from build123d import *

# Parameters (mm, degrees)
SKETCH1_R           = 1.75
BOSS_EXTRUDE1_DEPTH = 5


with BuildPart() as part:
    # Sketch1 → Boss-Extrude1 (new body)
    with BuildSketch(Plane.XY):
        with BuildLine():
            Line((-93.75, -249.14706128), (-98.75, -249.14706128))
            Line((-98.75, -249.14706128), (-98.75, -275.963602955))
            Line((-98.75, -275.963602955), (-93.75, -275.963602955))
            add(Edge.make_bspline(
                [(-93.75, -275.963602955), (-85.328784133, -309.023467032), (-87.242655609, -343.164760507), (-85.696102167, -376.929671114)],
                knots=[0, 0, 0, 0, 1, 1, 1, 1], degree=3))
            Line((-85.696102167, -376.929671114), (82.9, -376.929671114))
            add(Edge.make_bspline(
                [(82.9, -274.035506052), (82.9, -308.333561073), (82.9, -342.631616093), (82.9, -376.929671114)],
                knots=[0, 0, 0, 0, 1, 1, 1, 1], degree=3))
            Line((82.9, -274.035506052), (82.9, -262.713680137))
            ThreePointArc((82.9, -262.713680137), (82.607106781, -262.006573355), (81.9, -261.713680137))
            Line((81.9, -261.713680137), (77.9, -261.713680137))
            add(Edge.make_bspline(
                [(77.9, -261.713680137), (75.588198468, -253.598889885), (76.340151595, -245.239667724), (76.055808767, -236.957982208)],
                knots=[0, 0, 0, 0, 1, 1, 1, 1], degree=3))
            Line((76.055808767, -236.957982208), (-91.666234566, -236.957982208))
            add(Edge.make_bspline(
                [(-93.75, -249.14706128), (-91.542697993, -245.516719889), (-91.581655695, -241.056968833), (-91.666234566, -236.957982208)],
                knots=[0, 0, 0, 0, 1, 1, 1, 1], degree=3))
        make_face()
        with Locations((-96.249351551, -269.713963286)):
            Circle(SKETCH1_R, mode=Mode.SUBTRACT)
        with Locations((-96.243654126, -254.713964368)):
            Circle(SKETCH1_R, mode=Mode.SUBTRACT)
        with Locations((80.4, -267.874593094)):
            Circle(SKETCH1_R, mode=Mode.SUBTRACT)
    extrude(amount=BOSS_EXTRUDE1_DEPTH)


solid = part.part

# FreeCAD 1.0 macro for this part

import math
import FreeCAD as App
import Part
import Sketcher

doc = App.newDocument("Part")
body = doc.addObject("PartDesign::Body", "Body")

sketch1 = body.newObject("Sketcher::SketchObject", "Sketch")
sketch1.AttachmentSupport = (doc.getObject("XY_Plane"), [""])
sketch1.MapMode = "FlatFace"
sketch1.addGeometry([
    Part.LineSegment(App.Vector(-93.75, -249.147061, 0), App.Vector(-98.75, -249.147061, 0)),
    Part.LineSegment(App.Vector(-98.75, -249.147061, 0), App.Vector(-98.75, -275.963603, 0)),
    Part.LineSegment(App.Vector(-98.75, -275.963603, 0), App.Vector(-93.75, -275.963603, 0)),
    Part.BSplineCurve([App.Vector(-93.75, -275.963603, 0), App.Vector(-85.328784, -309.023467, 0), App.Vector(-87.242656, -343.164761, 0), App.Vector(-85.696102, -376.929671, 0)], [4, 4], [0, 1], False, 3, [1, 1, 1, 1], False),
    Part.LineSegment(App.Vector(-85.696102, -376.929671, 0), App.Vector(82.9, -376.929671, 0)),
    Part.BSplineCurve([App.Vector(82.9, -274.035506, 0), App.Vector(82.9, -308.333561, 0), App.Vector(82.9, -342.631616, 0), App.Vector(82.9, -376.929671, 0)], [4, 4], [0, 1], False, 3, [1, 1, 1, 1], False),
    Part.LineSegment(App.Vector(82.9, -274.035506, 0), App.Vector(82.9, -262.71368, 0)),
    Part.ArcOfCircle(Part.Circle(App.Vector(81.9, -262.71368, 0), App.Vector(0, 0, 1), 1), math.radians(0), math.radians(90)),
    Part.LineSegment(App.Vector(81.9, -261.71368, 0), App.Vector(77.9, -261.71368, 0)),
    Part.BSplineCurve([App.Vector(77.9, -261.71368, 0), App.Vector(75.588198, -253.59889, 0), App.Vector(76.340152, -245.239668, 0), App.Vector(76.055809, -236.957982, 0)], [4, 4], [0, 1], False, 3, [1, 1, 1, 1], False),
    Part.LineSegment(App.Vector(76.055809, -236.957982, 0), App.Vector(-91.666235, -236.957982, 0)),
    Part.BSplineCurve([App.Vector(-93.75, -249.147061, 0), App.Vector(-91.542698, -245.51672, 0), App.Vector(-91.581656, -241.056969, 0), App.Vector(-91.666235, -236.957982, 0)], [4, 4], [0, 1], False, 3, [1, 1, 1, 1], False),
    Part.Circle(App.Vector(-96.249352, -269.713963, 0), App.Vector(0, 0, 1), 1.75),
    Part.Circle(App.Vector(80.4, -267.874593, 0), App.Vector(0, 0, 1), 1.75),
    Part.Circle(App.Vector(-96.243654, -254.713964, 0), App.Vector(0, 0, 1), 1.75),
], False)
sketch1.addConstraint([
    Sketcher.Constraint("Block", 3),
    Sketcher.Constraint("Block", 5),
    Sketcher.Constraint("Block", 9),
    Sketcher.Constraint("Block", 11),
    Sketcher.Constraint("Coincident", 0, 2, 1, 1),
    Sketcher.Constraint("Coincident", 1, 2, 2, 1),
    Sketcher.Constraint("Coincident", 2, 2, 3, 1),
    Sketcher.Constraint("Coincident", 3, 2, 4, 1),
    Sketcher.Constraint("Coincident", 4, 2, 5, 2),
    Sketcher.Constraint("Coincident", 5, 1, 6, 1),
    Sketcher.Constraint("Tangent", 6, 2, 7, 1),
    Sketcher.Constraint("Tangent", 7, 2, 8, 1),
    Sketcher.Constraint("Coincident", 8, 2, 9, 1),
    Sketcher.Constraint("Coincident", 9, 2, 10, 1),
    Sketcher.Constraint("Coincident", 10, 2, 11, 2),
    Sketcher.Constraint("Coincident", 11, 1, 0, 1),
    Sketcher.Constraint("Horizontal", 0),
    Sketcher.Constraint("Vertical", 1),
    Sketcher.Constraint("Horizontal", 2),
    Sketcher.Constraint("Vertical", 6),
    Sketcher.Constraint("Horizontal", 8),
    Sketcher.Constraint("Equal", 12, 13),
    Sketcher.Constraint("Equal", 13, 14),
    Sketcher.Constraint("Radius", 7, 1.0),
    Sketcher.Constraint("Diameter", 12, 3.5),
    Sketcher.Constraint("DistanceX", 0, 2, 0, 1, 5.0),
    Sketcher.Constraint("DistanceY", 12, 3, 14, 3, 14.999999),
    Sketcher.Constraint("DistanceX", -1, 1, 13, 3, 80.4),
    Sketcher.Constraint("DistanceX", 12, 3, -1, 1, 96.249352),
    Sketcher.Constraint("DistanceY", 12, 3, 13, 3, 1.83937),
    Sketcher.Constraint("DistanceY", 13, 3, 0, 2, 18.727532),
    Sketcher.Constraint("DistanceX", 14, 3, 10, 2, 4.57742),
])
pad1 = body.newObject("PartDesign::Pad", "Pad")
pad1.Profile = sketch1
pad1.Length = 5

doc.recompute()
